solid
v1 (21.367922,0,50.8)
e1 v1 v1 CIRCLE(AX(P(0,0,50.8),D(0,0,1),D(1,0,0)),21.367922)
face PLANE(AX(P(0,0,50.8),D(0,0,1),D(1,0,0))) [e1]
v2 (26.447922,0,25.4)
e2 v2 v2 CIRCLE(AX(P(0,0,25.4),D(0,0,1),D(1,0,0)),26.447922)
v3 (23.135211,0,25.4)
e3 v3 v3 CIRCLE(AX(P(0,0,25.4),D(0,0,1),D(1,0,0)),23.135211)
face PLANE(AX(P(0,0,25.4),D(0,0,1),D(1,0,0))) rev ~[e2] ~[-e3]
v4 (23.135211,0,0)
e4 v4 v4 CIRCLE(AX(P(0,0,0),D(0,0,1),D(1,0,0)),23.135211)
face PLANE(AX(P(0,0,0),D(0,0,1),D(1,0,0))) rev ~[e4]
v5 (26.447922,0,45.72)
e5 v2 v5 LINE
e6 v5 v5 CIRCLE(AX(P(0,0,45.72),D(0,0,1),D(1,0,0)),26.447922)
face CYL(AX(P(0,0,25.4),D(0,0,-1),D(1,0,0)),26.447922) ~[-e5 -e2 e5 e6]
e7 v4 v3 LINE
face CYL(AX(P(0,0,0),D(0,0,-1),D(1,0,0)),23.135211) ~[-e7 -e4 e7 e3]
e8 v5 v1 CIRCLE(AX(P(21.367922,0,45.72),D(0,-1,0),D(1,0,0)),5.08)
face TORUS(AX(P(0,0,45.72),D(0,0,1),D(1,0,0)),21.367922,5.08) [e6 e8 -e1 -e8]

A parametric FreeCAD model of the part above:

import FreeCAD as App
import Part
import Sketcher
Q = App.Units.Quantity


def edges_at(feature, points):
    """Names of the edges that pass closest to the given points."""
    edges = feature.Shape.Edges
    near = lambda p: min(range(len(edges)), key=lambda i: edges[i].distToShape(Part.Vertex(*p))[0])
    return sorted({f"Edge{near(p) + 1}" for p in points})

doc = App.newDocument("Part")
body = doc.addObject("PartDesign::Body", "Body")

sketch1 = doc.addObject("Sketcher::SketchObject", "Sketch")
body.addObject(sketch1)
sketch1.AttachmentSupport = (doc.XY_Plane, [""])
sketch1.MapMode = "FlatFace"
sketch1.addGeometry(Part.Circle(App.Vector(0, 0, 0), App.Vector(0, 0, 1), 23), False)
sketch1.addConstraint([
    Sketcher.Constraint("Coincident", 0, 3, -1, 1),
    Sketcher.Constraint("Diameter", 0, Q("46.270422 mm")),
])
pad1 = doc.addObject("PartDesign::Pad", "Pad")
body.addObject(pad1)
pad1.Profile = sketch1
pad1.Length = Q("1 in")

sketch2 = doc.addObject("Sketcher::SketchObject", "Sketch001")
body.addObject(sketch2)
sketch2.AttachmentSupport = (doc.XY_Plane, [""])
sketch2.MapMode = "FlatFace"
sketch2.AttachmentOffset = App.Placement(App.Vector(0, 0, 1 * 25.4), App.Rotation())
sketch2.addGeometry(Part.Circle(App.Vector(0, 0, 0), App.Vector(0, 0, 1), 26), False)
sketch2.addConstraint([
    Sketcher.Constraint("Coincident", 0, 3, -1, 1),
    Sketcher.Constraint("Diameter", 0, Q("52.895844 mm")),
])
pad2 = doc.addObject("PartDesign::Pad", "Pad001")
body.addObject(pad2)
pad2.Profile = sketch2
pad2.Length = Q("1 in")
doc.recompute()

fillet = doc.addObject("PartDesign::Fillet", "Fillet")
body.addObject(fillet)
fillet.Base = (pad2, edges_at(pad2, [(-26.448, 0, 50.8)]))
fillet.Radius = Q("0.2 in")

doc.recompute()
